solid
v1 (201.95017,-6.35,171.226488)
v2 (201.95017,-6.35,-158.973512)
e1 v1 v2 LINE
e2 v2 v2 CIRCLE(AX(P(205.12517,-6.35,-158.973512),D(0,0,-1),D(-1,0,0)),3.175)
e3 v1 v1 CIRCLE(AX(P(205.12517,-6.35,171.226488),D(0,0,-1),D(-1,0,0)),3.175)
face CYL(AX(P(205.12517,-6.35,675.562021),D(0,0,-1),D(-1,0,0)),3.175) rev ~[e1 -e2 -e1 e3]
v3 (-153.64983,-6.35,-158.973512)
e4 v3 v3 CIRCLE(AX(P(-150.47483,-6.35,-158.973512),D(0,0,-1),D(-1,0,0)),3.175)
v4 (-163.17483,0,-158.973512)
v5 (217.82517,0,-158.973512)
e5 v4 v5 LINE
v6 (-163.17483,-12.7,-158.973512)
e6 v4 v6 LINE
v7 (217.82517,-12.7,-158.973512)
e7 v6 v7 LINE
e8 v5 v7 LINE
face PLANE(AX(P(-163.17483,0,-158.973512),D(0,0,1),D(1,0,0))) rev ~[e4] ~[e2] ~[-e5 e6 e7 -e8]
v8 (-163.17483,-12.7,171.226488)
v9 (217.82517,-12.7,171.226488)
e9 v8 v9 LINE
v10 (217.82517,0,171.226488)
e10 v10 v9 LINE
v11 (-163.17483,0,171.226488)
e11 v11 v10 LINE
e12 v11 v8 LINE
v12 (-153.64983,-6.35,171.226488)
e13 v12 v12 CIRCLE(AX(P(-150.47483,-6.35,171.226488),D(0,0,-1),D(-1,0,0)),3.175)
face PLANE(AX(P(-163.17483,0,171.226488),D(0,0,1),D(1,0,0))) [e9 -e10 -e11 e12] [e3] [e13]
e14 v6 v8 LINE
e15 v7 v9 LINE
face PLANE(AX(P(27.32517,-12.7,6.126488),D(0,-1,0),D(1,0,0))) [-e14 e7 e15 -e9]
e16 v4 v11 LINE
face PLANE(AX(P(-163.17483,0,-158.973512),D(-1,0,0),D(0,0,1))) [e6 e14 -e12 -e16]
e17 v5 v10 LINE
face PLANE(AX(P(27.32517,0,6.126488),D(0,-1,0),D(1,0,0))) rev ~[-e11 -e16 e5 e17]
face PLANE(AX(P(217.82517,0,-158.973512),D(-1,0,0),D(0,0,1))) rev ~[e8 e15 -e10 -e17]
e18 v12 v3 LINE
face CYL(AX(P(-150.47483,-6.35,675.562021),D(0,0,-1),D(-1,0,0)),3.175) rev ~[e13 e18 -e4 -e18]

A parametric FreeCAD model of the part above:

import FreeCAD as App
import Part
import Sketcher

V = App.Vector
Q = App.Units.Quantity


def add_polygon(sketch, points):
    """Adds a closed chain of lines whose ends are joined by coincident constraints."""
    first, n = sketch.GeometryCount, len(points)
    for a, b in zip(points, points[1:] + points[:1]):
        sketch.addGeometry(Part.LineSegment(App.Vector(*a, 0), App.Vector(*b, 0)), False)
    for i in range(n):
        sketch.addConstraint(Sketcher.Constraint("Coincident", first + i, 2, first + (i + 1) % n, 1))

doc = App.newDocument("Part")
body = doc.addObject("PartDesign::Body", "Body")

sketch1 = body.newObject("Sketcher::SketchObject", "Sketch")
sketch1.AttachmentSupport = (doc.getObject("XZ_Plane"), [""])
sketch1.MapMode = "FlatFace"
add_polygon(sketch1, [(-163.17483, 171.226488), (-163.17483, -158.973512), (217.82517, -158.973512), (217.82517, 171.226488)])
sketch1.addConstraint([
    Sketcher.Constraint("Vertical", 0),
    Sketcher.Constraint("Horizontal", 1),
    Sketcher.Constraint("Vertical", 2),
    Sketcher.Constraint("Horizontal", 3),
    Sketcher.Constraint("DistanceX", 1, 1, 1, 2, Q("15 in")),
    Sketcher.Constraint("DistanceY", 0, 2, 0, 1, Q("13 in")),
    Sketcher.Constraint("DistanceX", 0, 2, -1, 1, Q("163.17483 mm")),
    Sketcher.Constraint("DistanceY", 0, 2, -1, 1, Q("158.973512 mm")),
])
pad1 = body.newObject("PartDesign::Pad", "Pad")
pad1.Profile = sketch1
pad1.Length = Q("0.5 in")

sketch2 = body.newObject("Sketcher::SketchObject", "Sketch001")
sketch2.AttachmentSupport = (doc.getObject("XY_Plane"), [""])
sketch2.MapMode = "FlatFace"
sketch2.AttachmentOffset = App.Placement(V(0, 0, 171.226488), App.Rotation())
sketch2.addGeometry([
    Part.Circle(V(-150.47483, -6.35, 0), V(0, 0, 1), 3.175),
    Part.Circle(V(205.12517, -6.35, 0), V(0, 0, 1), 3.175),
], False)
sketch2.addConstraint([
    Sketcher.Constraint("Equal", 0, 1),
    Sketcher.Constraint("Horizontal", 0, 3, 1, 3),
    Sketcher.Constraint("Diameter", 0, Q("0.25 in")),
    Sketcher.Constraint("DistanceX", 0, 3, 1, 3, Q("14 in")),
    Sketcher.Constraint("DistanceY", 0, 3, -1, 1, Q("0.25 in")),
    Sketcher.Constraint("DistanceX", 0, 3, -1, 1, Q("150.47483 mm")),
])
doc.recompute()
hole = body.newObject("PartDesign::Hole", "Hole")
hole.Profile = sketch2
hole.ThreadType = "None"
hole.Diameter = Q("0.25 in")
hole.DepthType = "ThroughAll"

doc.recompute()
